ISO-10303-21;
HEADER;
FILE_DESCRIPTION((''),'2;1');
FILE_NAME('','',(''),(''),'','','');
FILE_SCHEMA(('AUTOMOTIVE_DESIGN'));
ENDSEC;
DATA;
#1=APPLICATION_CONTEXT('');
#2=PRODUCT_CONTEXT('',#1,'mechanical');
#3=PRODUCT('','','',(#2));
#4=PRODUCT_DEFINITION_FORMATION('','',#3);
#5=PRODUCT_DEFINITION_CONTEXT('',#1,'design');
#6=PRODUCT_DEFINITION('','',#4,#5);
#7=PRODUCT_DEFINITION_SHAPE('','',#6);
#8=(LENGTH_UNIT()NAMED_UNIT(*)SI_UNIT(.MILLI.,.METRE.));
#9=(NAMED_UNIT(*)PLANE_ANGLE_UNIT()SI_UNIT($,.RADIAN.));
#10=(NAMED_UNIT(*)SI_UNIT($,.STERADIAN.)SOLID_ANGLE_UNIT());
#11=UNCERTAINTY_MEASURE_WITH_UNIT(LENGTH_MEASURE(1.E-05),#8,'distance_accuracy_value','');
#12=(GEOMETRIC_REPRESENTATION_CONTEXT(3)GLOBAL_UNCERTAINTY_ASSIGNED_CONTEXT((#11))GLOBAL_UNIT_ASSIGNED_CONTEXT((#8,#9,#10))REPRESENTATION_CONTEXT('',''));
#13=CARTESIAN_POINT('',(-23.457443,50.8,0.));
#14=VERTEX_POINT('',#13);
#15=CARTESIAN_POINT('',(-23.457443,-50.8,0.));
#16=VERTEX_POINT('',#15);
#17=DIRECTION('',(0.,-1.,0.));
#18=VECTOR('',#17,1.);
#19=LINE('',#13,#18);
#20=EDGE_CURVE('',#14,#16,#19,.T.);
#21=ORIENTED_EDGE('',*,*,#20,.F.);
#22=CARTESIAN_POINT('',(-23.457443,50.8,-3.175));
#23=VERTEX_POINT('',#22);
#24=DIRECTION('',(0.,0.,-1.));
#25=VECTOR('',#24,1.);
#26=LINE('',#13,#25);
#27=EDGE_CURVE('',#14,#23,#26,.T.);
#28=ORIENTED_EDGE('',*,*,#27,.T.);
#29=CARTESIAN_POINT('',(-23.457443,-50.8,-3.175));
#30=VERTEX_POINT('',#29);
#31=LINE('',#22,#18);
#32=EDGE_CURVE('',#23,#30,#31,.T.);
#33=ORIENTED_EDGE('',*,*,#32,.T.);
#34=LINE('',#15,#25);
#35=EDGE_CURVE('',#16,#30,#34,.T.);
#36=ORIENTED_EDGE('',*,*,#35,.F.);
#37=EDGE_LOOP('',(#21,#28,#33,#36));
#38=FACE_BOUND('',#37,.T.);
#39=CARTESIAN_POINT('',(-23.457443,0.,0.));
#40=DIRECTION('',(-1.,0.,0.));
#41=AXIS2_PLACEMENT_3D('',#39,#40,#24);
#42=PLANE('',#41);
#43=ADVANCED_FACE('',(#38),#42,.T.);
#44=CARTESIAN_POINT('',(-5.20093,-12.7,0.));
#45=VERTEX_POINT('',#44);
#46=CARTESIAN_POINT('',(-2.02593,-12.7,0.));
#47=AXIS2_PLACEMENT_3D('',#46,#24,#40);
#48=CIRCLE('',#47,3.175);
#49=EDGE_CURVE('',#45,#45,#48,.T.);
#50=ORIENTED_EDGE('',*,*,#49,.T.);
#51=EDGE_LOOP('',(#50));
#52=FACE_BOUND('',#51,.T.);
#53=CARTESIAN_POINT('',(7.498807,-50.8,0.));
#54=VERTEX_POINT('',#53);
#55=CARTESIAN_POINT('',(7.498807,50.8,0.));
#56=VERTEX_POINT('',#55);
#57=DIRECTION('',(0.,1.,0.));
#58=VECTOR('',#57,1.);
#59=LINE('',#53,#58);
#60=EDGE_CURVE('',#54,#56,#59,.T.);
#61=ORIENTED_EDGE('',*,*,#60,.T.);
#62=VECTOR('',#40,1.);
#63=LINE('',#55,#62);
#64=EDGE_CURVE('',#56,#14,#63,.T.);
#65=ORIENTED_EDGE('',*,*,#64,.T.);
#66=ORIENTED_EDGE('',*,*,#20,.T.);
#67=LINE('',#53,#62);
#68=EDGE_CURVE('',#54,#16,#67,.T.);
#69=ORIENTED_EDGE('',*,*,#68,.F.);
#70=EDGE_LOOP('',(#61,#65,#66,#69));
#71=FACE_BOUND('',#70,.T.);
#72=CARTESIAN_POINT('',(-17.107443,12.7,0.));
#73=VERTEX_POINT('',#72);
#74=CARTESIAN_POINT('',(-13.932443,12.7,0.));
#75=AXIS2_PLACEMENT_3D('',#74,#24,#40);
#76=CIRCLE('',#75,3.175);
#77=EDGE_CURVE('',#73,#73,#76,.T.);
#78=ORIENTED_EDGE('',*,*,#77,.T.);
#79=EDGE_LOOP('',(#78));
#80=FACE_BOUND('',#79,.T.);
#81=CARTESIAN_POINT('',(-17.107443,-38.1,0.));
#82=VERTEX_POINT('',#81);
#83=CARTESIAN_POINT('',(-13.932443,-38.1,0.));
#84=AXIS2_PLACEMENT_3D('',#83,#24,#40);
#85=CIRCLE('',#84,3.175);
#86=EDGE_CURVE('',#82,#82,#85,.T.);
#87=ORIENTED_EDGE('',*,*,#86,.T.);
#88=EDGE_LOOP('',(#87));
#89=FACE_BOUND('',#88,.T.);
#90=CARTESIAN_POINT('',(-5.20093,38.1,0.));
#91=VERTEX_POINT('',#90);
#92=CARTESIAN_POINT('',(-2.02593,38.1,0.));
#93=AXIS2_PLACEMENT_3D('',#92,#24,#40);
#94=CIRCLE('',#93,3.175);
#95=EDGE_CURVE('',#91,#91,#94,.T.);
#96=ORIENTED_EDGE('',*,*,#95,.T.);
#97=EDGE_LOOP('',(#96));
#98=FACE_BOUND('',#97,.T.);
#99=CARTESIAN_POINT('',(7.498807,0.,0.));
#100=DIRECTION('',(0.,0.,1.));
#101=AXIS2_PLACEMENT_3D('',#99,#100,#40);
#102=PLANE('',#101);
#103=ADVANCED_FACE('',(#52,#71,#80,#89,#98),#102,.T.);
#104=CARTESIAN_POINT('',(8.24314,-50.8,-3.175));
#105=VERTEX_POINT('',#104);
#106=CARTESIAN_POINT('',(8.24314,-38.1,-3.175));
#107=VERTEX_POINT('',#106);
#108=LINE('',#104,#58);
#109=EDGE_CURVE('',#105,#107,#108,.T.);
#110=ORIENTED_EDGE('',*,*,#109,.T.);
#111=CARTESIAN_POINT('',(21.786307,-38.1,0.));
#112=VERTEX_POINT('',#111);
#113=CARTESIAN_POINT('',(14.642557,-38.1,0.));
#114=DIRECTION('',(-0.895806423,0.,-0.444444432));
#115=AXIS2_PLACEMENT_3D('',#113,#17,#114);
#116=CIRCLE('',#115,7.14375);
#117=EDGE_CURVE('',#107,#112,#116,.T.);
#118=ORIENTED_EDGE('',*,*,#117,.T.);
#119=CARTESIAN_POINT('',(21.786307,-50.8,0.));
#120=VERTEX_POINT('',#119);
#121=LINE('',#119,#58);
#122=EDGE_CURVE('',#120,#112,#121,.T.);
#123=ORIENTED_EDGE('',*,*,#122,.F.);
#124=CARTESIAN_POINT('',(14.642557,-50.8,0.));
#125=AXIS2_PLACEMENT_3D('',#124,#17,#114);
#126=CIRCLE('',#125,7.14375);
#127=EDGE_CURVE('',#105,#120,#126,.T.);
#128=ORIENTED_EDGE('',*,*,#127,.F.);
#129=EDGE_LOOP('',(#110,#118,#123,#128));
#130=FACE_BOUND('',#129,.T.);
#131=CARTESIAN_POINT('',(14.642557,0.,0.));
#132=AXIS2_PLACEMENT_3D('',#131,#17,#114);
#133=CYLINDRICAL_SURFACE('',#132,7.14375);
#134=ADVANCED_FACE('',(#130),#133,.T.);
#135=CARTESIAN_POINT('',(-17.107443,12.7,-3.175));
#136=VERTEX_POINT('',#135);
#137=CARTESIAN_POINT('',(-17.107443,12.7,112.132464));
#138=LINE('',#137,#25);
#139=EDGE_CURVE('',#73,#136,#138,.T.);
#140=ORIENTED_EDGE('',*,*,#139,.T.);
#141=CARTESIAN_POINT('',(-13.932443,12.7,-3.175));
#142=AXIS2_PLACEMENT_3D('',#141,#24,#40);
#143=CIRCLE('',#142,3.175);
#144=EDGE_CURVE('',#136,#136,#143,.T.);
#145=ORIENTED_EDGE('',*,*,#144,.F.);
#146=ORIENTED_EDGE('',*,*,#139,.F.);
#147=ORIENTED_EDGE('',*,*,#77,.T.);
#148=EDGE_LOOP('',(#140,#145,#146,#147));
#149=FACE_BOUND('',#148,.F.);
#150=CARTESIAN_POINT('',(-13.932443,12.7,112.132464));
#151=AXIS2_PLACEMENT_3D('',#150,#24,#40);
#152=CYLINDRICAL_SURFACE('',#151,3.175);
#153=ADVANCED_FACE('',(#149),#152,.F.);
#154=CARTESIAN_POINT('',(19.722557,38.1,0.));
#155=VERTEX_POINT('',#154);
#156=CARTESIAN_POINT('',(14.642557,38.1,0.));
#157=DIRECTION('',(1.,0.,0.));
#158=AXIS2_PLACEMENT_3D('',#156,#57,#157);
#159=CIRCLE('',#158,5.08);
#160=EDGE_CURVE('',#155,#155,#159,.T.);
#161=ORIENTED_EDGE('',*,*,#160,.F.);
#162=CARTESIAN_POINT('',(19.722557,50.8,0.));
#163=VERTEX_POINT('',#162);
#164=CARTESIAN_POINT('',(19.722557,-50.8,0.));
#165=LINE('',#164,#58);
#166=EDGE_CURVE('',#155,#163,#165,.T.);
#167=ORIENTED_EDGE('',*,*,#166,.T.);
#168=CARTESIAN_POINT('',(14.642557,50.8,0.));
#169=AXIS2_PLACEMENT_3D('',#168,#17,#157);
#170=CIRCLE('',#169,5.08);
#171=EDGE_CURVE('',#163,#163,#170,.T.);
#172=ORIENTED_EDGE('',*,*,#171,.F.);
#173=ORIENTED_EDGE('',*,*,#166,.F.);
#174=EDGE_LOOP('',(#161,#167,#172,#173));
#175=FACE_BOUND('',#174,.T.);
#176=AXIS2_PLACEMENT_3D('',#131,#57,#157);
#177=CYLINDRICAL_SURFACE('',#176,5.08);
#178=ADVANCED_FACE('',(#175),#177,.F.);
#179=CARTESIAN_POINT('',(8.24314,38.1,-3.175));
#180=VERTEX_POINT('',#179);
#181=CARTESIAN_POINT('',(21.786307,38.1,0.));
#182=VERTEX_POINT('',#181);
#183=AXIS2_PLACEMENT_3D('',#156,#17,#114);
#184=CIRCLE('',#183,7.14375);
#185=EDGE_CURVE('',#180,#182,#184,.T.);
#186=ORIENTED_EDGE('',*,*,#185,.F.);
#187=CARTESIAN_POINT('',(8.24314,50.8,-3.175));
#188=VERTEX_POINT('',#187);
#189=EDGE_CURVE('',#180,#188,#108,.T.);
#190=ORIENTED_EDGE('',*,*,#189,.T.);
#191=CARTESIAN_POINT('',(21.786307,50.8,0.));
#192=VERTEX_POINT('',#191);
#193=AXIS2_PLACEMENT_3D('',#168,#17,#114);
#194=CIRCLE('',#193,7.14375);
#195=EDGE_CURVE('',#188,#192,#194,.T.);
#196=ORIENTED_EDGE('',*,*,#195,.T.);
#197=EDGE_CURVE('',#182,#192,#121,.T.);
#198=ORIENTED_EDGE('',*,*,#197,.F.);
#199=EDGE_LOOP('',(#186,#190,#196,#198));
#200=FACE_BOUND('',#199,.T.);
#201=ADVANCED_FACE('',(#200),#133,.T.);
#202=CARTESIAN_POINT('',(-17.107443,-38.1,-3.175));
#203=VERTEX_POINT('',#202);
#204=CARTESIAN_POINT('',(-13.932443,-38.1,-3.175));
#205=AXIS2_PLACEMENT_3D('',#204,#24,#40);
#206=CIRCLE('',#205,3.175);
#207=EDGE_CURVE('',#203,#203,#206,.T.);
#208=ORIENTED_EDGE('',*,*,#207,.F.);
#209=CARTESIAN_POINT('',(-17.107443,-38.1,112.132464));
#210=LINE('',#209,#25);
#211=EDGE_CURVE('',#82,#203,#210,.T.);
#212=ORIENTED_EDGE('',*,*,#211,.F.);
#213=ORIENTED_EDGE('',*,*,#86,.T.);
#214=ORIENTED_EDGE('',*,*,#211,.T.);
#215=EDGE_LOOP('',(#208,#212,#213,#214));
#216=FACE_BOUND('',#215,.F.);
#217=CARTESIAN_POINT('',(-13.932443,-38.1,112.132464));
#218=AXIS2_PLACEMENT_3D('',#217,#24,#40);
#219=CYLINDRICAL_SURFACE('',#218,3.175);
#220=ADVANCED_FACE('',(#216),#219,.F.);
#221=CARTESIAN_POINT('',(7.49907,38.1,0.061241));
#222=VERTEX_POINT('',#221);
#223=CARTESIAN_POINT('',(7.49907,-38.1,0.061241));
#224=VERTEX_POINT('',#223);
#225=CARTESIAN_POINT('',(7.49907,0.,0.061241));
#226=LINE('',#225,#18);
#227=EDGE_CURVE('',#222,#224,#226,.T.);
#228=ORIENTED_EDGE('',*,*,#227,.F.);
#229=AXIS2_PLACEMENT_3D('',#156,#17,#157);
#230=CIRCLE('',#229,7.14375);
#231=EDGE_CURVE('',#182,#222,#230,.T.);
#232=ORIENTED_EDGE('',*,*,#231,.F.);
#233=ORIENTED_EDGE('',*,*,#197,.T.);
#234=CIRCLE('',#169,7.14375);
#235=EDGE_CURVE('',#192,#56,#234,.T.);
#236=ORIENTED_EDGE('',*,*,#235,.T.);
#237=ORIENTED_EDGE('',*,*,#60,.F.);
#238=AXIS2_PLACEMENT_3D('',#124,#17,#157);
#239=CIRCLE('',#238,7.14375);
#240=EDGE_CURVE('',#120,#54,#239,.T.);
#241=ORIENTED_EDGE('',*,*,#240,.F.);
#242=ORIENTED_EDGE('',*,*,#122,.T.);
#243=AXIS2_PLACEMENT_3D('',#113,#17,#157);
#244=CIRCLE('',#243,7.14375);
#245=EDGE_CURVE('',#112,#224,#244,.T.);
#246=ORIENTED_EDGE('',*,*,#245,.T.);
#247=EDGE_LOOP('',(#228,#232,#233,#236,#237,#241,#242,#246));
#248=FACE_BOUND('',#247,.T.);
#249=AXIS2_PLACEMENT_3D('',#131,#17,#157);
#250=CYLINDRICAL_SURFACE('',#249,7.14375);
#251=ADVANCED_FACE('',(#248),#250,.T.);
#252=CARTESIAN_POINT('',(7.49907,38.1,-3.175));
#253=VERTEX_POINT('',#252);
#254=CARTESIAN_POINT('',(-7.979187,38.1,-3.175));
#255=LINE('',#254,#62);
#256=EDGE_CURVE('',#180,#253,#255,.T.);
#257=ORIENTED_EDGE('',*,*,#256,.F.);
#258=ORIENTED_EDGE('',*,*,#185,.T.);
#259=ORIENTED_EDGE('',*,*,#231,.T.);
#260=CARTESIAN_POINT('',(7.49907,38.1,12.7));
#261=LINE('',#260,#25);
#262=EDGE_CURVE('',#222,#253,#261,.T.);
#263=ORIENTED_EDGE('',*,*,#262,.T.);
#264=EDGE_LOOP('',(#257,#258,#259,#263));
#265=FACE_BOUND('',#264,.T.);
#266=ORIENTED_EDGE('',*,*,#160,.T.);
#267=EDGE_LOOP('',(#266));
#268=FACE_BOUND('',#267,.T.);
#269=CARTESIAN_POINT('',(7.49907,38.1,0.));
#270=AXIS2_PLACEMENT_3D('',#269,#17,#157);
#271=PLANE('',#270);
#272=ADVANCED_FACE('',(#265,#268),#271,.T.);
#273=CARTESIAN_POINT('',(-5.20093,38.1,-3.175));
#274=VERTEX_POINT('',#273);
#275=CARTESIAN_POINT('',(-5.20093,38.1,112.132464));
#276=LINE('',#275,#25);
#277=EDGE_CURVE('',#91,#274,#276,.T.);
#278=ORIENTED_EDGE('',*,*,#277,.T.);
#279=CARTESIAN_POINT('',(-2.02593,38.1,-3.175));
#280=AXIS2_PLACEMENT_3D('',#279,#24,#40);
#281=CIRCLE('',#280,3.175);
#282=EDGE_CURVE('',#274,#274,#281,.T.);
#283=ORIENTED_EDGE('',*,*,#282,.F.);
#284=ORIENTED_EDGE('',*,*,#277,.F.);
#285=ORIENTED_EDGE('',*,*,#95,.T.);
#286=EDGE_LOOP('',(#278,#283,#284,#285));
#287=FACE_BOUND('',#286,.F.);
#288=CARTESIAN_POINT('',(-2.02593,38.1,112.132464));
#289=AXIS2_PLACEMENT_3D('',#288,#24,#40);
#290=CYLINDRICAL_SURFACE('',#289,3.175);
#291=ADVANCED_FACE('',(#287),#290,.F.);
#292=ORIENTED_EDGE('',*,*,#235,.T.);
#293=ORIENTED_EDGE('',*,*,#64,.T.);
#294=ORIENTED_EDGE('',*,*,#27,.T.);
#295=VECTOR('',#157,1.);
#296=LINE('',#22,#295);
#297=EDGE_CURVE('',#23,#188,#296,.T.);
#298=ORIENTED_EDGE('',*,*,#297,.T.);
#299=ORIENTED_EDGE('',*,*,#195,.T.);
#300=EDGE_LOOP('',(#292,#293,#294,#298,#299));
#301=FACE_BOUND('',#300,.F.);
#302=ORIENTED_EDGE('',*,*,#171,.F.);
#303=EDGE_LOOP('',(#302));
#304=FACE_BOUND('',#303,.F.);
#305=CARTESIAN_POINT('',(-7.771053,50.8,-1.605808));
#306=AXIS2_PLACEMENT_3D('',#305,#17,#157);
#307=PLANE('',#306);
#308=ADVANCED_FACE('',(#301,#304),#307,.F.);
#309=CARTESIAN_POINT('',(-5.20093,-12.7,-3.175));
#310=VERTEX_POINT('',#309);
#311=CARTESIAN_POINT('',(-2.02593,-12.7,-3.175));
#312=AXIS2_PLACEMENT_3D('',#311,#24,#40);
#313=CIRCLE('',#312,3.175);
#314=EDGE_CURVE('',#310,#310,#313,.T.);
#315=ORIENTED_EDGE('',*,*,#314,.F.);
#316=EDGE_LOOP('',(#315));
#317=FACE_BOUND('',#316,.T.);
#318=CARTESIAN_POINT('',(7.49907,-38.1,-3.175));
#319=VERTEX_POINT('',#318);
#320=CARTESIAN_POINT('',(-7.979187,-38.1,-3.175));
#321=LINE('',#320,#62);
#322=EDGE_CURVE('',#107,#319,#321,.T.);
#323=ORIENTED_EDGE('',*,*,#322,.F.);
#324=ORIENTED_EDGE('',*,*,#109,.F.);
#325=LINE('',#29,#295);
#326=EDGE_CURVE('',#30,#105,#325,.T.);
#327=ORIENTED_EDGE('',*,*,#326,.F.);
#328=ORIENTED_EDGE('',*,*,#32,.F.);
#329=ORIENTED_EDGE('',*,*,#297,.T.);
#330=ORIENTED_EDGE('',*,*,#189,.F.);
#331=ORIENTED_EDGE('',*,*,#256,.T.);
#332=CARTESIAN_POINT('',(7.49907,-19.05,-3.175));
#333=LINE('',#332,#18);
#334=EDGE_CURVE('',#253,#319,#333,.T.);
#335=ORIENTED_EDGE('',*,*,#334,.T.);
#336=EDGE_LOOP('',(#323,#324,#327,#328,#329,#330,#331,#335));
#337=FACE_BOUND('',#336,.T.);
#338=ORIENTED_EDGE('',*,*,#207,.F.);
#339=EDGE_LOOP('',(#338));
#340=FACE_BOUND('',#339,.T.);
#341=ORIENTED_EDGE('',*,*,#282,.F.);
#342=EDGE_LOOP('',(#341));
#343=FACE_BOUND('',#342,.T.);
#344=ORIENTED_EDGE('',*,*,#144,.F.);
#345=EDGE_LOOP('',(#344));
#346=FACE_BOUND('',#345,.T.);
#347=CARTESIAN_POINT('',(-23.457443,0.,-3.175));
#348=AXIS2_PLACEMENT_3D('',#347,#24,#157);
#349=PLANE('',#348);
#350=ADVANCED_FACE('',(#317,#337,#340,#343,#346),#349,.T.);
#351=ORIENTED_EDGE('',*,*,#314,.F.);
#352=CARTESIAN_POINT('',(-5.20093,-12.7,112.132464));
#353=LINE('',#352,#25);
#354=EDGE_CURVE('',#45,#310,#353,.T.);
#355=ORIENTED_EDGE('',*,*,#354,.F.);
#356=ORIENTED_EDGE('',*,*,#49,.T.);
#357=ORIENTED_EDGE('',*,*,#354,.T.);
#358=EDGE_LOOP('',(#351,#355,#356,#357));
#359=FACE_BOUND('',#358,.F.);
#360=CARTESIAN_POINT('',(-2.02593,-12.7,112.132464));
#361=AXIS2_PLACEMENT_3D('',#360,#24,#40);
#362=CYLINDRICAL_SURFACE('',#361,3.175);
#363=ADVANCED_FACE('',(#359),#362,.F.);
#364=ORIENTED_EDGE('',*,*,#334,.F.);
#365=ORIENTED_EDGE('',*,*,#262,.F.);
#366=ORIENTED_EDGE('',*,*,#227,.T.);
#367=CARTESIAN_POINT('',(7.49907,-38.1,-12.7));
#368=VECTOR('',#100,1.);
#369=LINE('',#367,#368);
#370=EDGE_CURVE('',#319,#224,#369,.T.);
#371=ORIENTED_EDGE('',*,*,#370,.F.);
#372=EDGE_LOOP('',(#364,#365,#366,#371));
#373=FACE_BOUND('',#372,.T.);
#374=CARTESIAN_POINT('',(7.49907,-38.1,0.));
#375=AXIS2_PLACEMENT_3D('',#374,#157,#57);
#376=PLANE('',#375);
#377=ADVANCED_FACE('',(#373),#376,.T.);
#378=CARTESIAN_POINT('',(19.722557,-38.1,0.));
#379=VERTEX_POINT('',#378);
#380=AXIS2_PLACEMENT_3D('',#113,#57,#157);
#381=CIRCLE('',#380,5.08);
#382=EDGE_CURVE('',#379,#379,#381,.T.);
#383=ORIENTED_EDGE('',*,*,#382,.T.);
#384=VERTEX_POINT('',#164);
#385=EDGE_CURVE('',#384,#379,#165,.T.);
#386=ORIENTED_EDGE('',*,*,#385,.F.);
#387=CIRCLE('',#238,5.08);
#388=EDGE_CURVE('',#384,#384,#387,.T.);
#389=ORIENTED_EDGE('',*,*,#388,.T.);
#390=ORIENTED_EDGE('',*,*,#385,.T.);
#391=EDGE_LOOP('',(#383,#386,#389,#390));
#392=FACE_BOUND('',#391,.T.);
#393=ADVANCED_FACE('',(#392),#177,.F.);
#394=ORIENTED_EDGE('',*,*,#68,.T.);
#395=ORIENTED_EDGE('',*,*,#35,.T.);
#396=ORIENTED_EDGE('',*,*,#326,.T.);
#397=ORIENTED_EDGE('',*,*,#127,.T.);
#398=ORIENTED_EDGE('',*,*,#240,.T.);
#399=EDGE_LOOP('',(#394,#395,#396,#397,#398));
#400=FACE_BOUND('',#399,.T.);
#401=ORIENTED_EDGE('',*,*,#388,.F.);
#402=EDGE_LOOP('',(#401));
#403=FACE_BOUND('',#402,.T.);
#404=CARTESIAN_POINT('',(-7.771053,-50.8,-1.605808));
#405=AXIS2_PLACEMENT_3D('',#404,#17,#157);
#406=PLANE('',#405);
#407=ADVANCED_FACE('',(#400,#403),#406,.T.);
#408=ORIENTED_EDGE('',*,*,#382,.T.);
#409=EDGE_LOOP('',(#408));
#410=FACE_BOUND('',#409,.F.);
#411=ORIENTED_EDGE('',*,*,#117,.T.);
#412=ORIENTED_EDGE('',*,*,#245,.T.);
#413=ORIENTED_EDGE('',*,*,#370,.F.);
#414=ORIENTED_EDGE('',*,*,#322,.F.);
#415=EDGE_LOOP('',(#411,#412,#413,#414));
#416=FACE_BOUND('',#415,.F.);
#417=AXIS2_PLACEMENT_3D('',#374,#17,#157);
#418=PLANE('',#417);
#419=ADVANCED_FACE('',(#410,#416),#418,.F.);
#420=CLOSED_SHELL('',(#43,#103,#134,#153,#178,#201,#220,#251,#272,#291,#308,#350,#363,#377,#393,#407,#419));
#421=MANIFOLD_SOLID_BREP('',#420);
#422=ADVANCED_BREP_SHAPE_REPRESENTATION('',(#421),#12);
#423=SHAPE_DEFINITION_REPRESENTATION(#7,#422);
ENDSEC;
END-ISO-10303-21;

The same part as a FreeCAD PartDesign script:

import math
import FreeCAD as App
import Part
import Sketcher

V = App.Vector
Q = App.Units.Quantity

doc = App.newDocument("Part")
body = doc.addObject("PartDesign::Body", "Body")

sketch1 = body.newObject("Sketcher::SketchObject", "Sketch")
sketch1.AttachmentSupport = (doc.getObject("XZ_Plane"), [""])
sketch1.MapMode = "FlatFace"
sketch1.addGeometry([
    Part.LineSegment(V(7.498807, 0, 0), V(-23.457443, 0, 0)),
    Part.LineSegment(V(-23.457443, 0, 0), V(-23.457443, -3.175, 0)),
    Part.LineSegment(V(-23.457443, -3.175, 0), V(8.24314, -3.175, 0)),
    Part.ArcOfCircle(Part.Circle(V(14.642557, 0, 0), V(0, 0, 1), 7.14375), math.radians(-153.612201), math.radians(0.000001)),
    Part.ArcOfCircle(Part.Circle(V(14.642557, 0, 0), V(0, 0, 1), 7.14375), math.radians(0), math.radians(180)),
    Part.Circle(V(14.642557, 0, 0), V(0, 0, 1), 5.08),
], False)
sketch1.addConstraint([
    Sketcher.Constraint("Coincident", 0, 2, 1, 1),
    Sketcher.Constraint("Coincident", 1, 2, 2, 1),
    Sketcher.Constraint("Coincident", 2, 2, 3, 1),
    Sketcher.Constraint("Tangent", 3, 2, 4, 1),
    Sketcher.Constraint("Coincident", 4, 2, 0, 1),
    Sketcher.Constraint("Horizontal", 0),
    Sketcher.Constraint("Vertical", 1),
    Sketcher.Constraint("Horizontal", 2),
    Sketcher.Constraint("Coincident", 5, 3, 3, 3),
    Sketcher.Constraint("Equal", 3, 4),
    Sketcher.Constraint("PointOnObject", 3, 3, -1),
    Sketcher.Constraint("PointOnObject", 0, 2, -1),
    Sketcher.Constraint("PointOnObject", 3, 2, -1),
    Sketcher.Constraint("Diameter", 5, Q("0.4 in")),
    Sketcher.Constraint("Radius", 3, Q("0.28125 in")),
    Sketcher.Constraint("DistanceX", 0, 2, 4, 3, Q("1.5 in")),
    Sketcher.Constraint("DistanceY", 1, 2, 1, 1, Q("0.125 in")),
    Sketcher.Constraint("DistanceX", -1, 1, 2, 2, Q("8.24314 mm")),
])
pad1 = body.newObject("PartDesign::Pad", "Pad")
pad1.Profile = sketch1
pad1.Length = Q("4 in")
pad1.Midplane = True

sketch2 = body.newObject("Sketcher::SketchObject", "Sketch001")
sketch2.AttachmentSupport = (doc.getObject("XY_Plane"), [""])
sketch2.MapMode = "FlatFace"
sketch2.addGeometry([
    Part.LineSegment(V(7.49907, 38.1, 0), V(7.49907, -38.1, 0)),
    Part.LineSegment(V(7.49907, -38.1, 0), V(22.956159, -38.1, 0)),
    Part.LineSegment(V(22.956159, -38.1, 0), V(22.956159, 38.1, 0)),
    Part.LineSegment(V(22.956159, 38.1, 0), V(7.49907, 38.1, 0)),
], False)
sketch2.addConstraint([
    Sketcher.Constraint("Coincident", 0, 2, 1, 1),
    Sketcher.Constraint("Coincident", 1, 2, 2, 1),
    Sketcher.Constraint("Coincident", 2, 2, 3, 1),
    Sketcher.Constraint("Coincident", 3, 2, 0, 1),
    Sketcher.Constraint("Vertical", 0),
    Sketcher.Constraint("Horizontal", 1),
    Sketcher.Constraint("Vertical", 2),
    Sketcher.Constraint("Horizontal", 3),
    Sketcher.Constraint("DistanceY", 0, 2, 0, 1, Q("3 in")),
    Sketcher.Constraint("DistanceY", 0, 2, -1, 1, Q("1.5 in")),
    Sketcher.Constraint("DistanceX", 1, 1, 1, 2, Q("15.457089 mm")),
    Sketcher.Constraint("DistanceX", -1, 1, 0, 2, Q("7.49907 mm")),
])
pocket1 = body.newObject("PartDesign::Pocket", "Pocket")
pocket1.Profile = sketch2
pocket1.Length = Q("1 in")
pocket1.Midplane = True

sketch3 = body.newObject("Sketcher::SketchObject", "Sketch002")
sketch3.AttachmentSupport = (doc.getObject("XY_Plane"), [""])
sketch3.MapMode = "FlatFace"
sketch3.addGeometry([
    Part.Circle(V(-2.02593, 38.1, 0), V(0, 0, 1), 3.175),
    Part.Circle(V(-13.932443, 12.7, 0), V(0, 0, 1), 3.175),
    Part.Circle(V(-2.02593, -12.7, 0), V(0, 0, 1), 3.175),
    Part.Circle(V(-13.932443, -38.1, 0), V(0, 0, 1), 3.175),
], False)
sketch3.addConstraint([
    Sketcher.Constraint("Equal", 0, 1),
    Sketcher.Constraint("Equal", 1, 2),
    Sketcher.Constraint("Equal", 2, 3),
    Sketcher.Constraint("Vertical", 0, 3, 2, 3),
    Sketcher.Constraint("Vertical", 1, 3, 3, 3),
    Sketcher.Constraint("Diameter", 0, Q("0.25 in")),
    Sketcher.Constraint("DistanceY", 1, 3, 0, 3, Q("1 in")),
    Sketcher.Constraint("DistanceY", 2, 3, 1, 3, Q("1 in")),
    Sketcher.Constraint("DistanceY", 3, 3, 2, 3, Q("1 in")),
    Sketcher.Constraint("DistanceY", -1, 1, 0, 3, Q("1.5 in")),
    Sketcher.Constraint("DistanceX", 0, 3, -1, 1, Q("2.02593 mm")),
    Sketcher.Constraint("DistanceX", 1, 3, -1, 1, Q("13.932443 mm")),
])
doc.recompute()
hole = body.newObject("PartDesign::Hole", "Hole")
hole.Profile = sketch3
hole.ThreadType = "None"
hole.Diameter = Q("0.25 in")
hole.DepthType = "ThroughAll"

doc.recompute()
